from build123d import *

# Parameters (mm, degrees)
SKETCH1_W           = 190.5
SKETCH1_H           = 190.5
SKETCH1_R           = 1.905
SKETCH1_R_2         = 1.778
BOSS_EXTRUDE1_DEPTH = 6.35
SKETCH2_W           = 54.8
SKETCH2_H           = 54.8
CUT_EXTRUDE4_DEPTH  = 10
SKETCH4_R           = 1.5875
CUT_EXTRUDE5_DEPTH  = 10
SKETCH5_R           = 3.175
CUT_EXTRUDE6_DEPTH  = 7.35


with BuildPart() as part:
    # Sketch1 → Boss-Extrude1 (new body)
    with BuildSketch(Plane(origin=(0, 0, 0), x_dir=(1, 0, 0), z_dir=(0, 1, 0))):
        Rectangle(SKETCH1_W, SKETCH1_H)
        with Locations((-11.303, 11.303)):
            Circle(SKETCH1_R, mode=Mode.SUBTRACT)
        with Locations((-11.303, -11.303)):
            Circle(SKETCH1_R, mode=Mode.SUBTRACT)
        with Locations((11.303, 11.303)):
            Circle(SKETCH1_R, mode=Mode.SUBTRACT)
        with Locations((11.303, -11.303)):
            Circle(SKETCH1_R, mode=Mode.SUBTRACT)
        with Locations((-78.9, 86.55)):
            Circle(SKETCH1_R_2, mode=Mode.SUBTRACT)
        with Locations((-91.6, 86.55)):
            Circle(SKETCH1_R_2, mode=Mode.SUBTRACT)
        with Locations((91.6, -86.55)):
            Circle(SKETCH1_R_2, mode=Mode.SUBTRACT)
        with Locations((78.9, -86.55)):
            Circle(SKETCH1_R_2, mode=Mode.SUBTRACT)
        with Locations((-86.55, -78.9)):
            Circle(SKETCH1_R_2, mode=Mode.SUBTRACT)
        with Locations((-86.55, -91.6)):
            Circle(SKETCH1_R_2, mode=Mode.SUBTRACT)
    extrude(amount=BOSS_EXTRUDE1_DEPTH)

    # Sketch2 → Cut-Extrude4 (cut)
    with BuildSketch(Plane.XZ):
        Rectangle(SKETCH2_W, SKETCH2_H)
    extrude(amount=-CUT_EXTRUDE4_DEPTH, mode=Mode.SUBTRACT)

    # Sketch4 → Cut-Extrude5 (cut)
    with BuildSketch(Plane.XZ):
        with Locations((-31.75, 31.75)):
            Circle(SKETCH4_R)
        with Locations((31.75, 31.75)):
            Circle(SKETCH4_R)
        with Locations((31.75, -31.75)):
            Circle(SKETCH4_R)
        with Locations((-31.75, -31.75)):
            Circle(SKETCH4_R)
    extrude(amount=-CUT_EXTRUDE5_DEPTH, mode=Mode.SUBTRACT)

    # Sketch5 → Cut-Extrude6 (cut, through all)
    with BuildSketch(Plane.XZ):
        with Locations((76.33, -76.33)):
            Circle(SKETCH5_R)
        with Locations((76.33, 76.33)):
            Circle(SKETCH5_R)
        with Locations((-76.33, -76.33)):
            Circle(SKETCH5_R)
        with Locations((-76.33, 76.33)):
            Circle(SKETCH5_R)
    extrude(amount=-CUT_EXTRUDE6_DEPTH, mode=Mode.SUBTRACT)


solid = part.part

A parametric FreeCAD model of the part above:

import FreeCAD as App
import Part
import Sketcher
Q = App.Units.Quantity

doc = App.newDocument("Part")
body = doc.addObject("PartDesign::Body", "Body")

# Sketch on XZ plane
sketch1 = body.newObject("Sketcher::SketchObject", "Sketch")
sketch1.AttachmentSupport = (doc.getObject("XZ_Plane"), [""])
sketch1.MapMode = "FlatFace"
sketch1.addGeometry([
    Part.LineSegment(App.Vector(-95.25, -95.25, 0), App.Vector(-95.25, 95.25, 0)),  # 0
    Part.LineSegment(App.Vector(-95.25, 95.25, 0), App.Vector(95.25, 95.25, 0)),  # 1
    Part.LineSegment(App.Vector(95.25, 95.25, 0), App.Vector(95.25, -95.25, 0)),  # 2
    Part.LineSegment(App.Vector(95.25, -95.25, 0), App.Vector(-95.25, -95.25, 0)),  # 3
    Part.Circle(App.Vector(-86.55, 91.6, 0), App.Vector(0, 0, 1), 1.778),  # 4
    Part.Circle(App.Vector(-86.55, 78.9, 0), App.Vector(0, 0, 1), 1.778),  # 5
    Part.Circle(App.Vector(-11.303, 11.303, 0), App.Vector(0, 0, 1), 1.905),  # 6
    Part.Circle(App.Vector(78.9, 86.55, 0), App.Vector(0, 0, 1), 1.778),  # 7
    Part.Circle(App.Vector(91.6, 86.55, 0), App.Vector(0, 0, 1), 1.778),  # 8
    Part.Circle(App.Vector(11.303, 11.303, 0), App.Vector(0, 0, 1), 1.905),  # 9
    Part.Circle(App.Vector(-11.303, -11.303, 0), App.Vector(0, 0, 1), 1.905),  # 10
    Part.Circle(App.Vector(-91.6, -86.55, 0), App.Vector(0, 0, 1), 1.778),  # 11
    Part.Circle(App.Vector(-78.9, -86.55, 0), App.Vector(0, 0, 1), 1.778),  # 12
    Part.Circle(App.Vector(11.303, -11.303, 0), App.Vector(0, 0, 1), 1.905),  # 13
], False)
sketch1.addConstraint([
    Sketcher.Constraint("Coincident", 0, 2, 1, 1),
    Sketcher.Constraint("Coincident", 1, 2, 2, 1),
    Sketcher.Constraint("Coincident", 2, 2, 3, 1),
    Sketcher.Constraint("Coincident", 3, 2, 0, 1),
    Sketcher.Constraint("Vertical", 0),
    Sketcher.Constraint("Horizontal", 1),
    Sketcher.Constraint("Vertical", 2),
    Sketcher.Constraint("Horizontal", 3),
    Sketcher.Constraint("Equal", 4, 5),
    Sketcher.Constraint("Equal", 5, 7),
    Sketcher.Constraint("Equal", 7, 8),
    Sketcher.Constraint("Equal", 6, 9),
    Sketcher.Constraint("Equal", 9, 10),
    Sketcher.Constraint("Equal", 8, 11),
    Sketcher.Constraint("Equal", 11, 12),
    Sketcher.Constraint("Equal", 10, 13),
    Sketcher.Constraint("Symmetric", 9, 3, 10, 3, -1, 1),
    Sketcher.Constraint("Symmetric", 8, 3, 11, 3, -1, 1),
    Sketcher.Constraint("Symmetric", 7, 3, 12, 3, -1, 1),
    Sketcher.Constraint("Symmetric", 6, 3, 13, 3, -1, 1),
    Sketcher.Constraint("Symmetric", 0, 2, 2, 2, -1, 1),
    Sketcher.Constraint("Symmetric", 6, 3, 9, 3, -2),
    Sketcher.Constraint("Horizontal", 7, 3, 8, 3),
    Sketcher.Constraint("Vertical", 4, 3, 5, 3),
    Sketcher.Constraint("Equal", 3, 0),
    Sketcher.Constraint("Diameter", 4, Q("0.14 in")),
    Sketcher.Constraint("Diameter", 6, Q("0.15 in")),
    Sketcher.Constraint("DistanceX", 1, 1, 1, 2, Q("7.5 in")),
    Sketcher.Constraint("DistanceY", 5, 3, 4, 3, Q("0.5 in")),
    Sketcher.Constraint("DistanceX", 7, 3, 8, 3, Q("0.5 in")),
    Sketcher.Constraint("DistanceX", 6, 3, 9, 3, Q("0.89 in")),
    Sketcher.Constraint("DistanceY", 10, 3, 6, 3, Q("0.89 in")),
    Sketcher.Constraint("DistanceX", 4, 3, -1, 1, 86.55),
    Sketcher.Constraint("DistanceY", -1, 1, 4, 3, 91.6),
    Sketcher.Constraint("DistanceX", -1, 1, 7, 3, 78.9),
    Sketcher.Constraint("DistanceY", -1, 1, 7, 3, 86.55),
])
pad1 = body.newObject("PartDesign::Pad", "Pad")
pad1.Profile = sketch1
pad1.Length = Q("0.25 in")
pad1.Reversed = True

# Sketch on XZ plane
sketch2 = body.newObject("Sketcher::SketchObject", "Sketch001")
sketch2.AttachmentSupport = (doc.getObject("XZ_Plane"), [""])
sketch2.MapMode = "FlatFace"
sketch2.addGeometry([
    Part.LineSegment(App.Vector(-27.4, 27.4, 0), App.Vector(-27.4, -27.4, 0)),
    Part.LineSegment(App.Vector(-27.4, -27.4, 0), App.Vector(27.4, -27.4, 0)),
    Part.LineSegment(App.Vector(27.4, -27.4, 0), App.Vector(27.4, 27.4, 0)),
    Part.LineSegment(App.Vector(27.4, 27.4, 0), App.Vector(-27.4, 27.4, 0)),
], False)
sketch2.addConstraint([
    Sketcher.Constraint("Coincident", 0, 2, 1, 1),
    Sketcher.Constraint("Coincident", 1, 2, 2, 1),
    Sketcher.Constraint("Coincident", 2, 2, 3, 1),
    Sketcher.Constraint("Coincident", 3, 2, 0, 1),
    Sketcher.Constraint("Vertical", 0),
    Sketcher.Constraint("Horizontal", 1),
    Sketcher.Constraint("Vertical", 2),
    Sketcher.Constraint("Horizontal", 3),
    Sketcher.Constraint("Symmetric", 0, 2, 2, 2, -1, 1),
    Sketcher.Constraint("Equal", 3, 0),
    Sketcher.Constraint("DistanceX", 1, 1, 1, 2, 54.8),
])
pocket1 = body.newObject("PartDesign::Pocket", "Pocket")
pocket1.Profile = sketch2
pocket1.Length = 10

# Sketch on XZ plane
sketch3 = body.newObject("Sketcher::SketchObject", "Sketch002")
sketch3.AttachmentSupport = (doc.getObject("XZ_Plane"), [""])
sketch3.MapMode = "FlatFace"
sketch3.addGeometry([
    Part.Circle(App.Vector(-31.75, 31.75, 0), App.Vector(0, 0, 1), 1.5875),
    Part.Circle(App.Vector(31.75, 31.75, 0), App.Vector(0, 0, 1), 1.5875),
    Part.Circle(App.Vector(31.75, -31.75, 0), App.Vector(0, 0, 1), 1.5875),
    Part.Circle(App.Vector(-31.75, -31.75, 0), App.Vector(0, 0, 1), 1.5875),
], False)
sketch3.addConstraint([
    Sketcher.Constraint("Equal", 0, 1),
    Sketcher.Constraint("Equal", 1, 2),
    Sketcher.Constraint("Equal", 2, 3),
    Sketcher.Constraint("Symmetric", 0, 3, 2, 3, -1, 1),
    Sketcher.Constraint("Symmetric", 1, 3, 3, 3, -1, 1),
    Sketcher.Constraint("Symmetric", 0, 3, 1, 3, -2),
    Sketcher.Constraint("Diameter", 0, Q("0.125 in")),
    Sketcher.Constraint("DistanceX", 0, 3, 1, 3, Q("2.5 in")),
    Sketcher.Constraint("DistanceY", 2, 3, 1, 3, Q("2.5 in")),
])
pocket2 = body.newObject("PartDesign::Pocket", "Pocket001")
pocket2.Profile = sketch3
pocket2.Length = 10

# Sketch on XZ plane
sketch4 = body.newObject("Sketcher::SketchObject", "Sketch003")
sketch4.AttachmentSupport = (doc.getObject("XZ_Plane"), [""])
sketch4.MapMode = "FlatFace"
sketch4.addGeometry([
    Part.Circle(App.Vector(76.33, -76.33, 0), App.Vector(0, 0, 1), 3.175),
    Part.Circle(App.Vector(76.33, 76.33, 0), App.Vector(0, 0, 1), 3.175),
    Part.Circle(App.Vector(-76.33, -76.33, 0), App.Vector(0, 0, 1), 3.175),
    Part.Circle(App.Vector(-76.33, 76.33, 0), App.Vector(0, 0, 1), 3.175),
], False)
sketch4.addConstraint([
    Sketcher.Constraint("Equal", 0, 1),
    Sketcher.Constraint("Equal", 1, 2),
    Sketcher.Constraint("Equal", 2, 3),
    Sketcher.Constraint("Symmetric", 1, 3, 2, 3, -1, 1),
    Sketcher.Constraint("Symmetric", 0, 3, 3, 3, -1, 1),
    Sketcher.Constraint("Symmetric", 0, 3, 2, 3, -2),
    Sketcher.Constraint("Diameter", 0, Q("0.25 in")),
    Sketcher.Constraint("DistanceX", -1, 1, 0, 3, 76.33),
    Sketcher.Constraint("DistanceY", 0, 3, -1, 1, 76.33),
])
pocket3 = body.newObject("PartDesign::Pocket", "Pocket002")
pocket3.Profile = sketch4
pocket3.Type = "ThroughAll"

doc.recompute()
